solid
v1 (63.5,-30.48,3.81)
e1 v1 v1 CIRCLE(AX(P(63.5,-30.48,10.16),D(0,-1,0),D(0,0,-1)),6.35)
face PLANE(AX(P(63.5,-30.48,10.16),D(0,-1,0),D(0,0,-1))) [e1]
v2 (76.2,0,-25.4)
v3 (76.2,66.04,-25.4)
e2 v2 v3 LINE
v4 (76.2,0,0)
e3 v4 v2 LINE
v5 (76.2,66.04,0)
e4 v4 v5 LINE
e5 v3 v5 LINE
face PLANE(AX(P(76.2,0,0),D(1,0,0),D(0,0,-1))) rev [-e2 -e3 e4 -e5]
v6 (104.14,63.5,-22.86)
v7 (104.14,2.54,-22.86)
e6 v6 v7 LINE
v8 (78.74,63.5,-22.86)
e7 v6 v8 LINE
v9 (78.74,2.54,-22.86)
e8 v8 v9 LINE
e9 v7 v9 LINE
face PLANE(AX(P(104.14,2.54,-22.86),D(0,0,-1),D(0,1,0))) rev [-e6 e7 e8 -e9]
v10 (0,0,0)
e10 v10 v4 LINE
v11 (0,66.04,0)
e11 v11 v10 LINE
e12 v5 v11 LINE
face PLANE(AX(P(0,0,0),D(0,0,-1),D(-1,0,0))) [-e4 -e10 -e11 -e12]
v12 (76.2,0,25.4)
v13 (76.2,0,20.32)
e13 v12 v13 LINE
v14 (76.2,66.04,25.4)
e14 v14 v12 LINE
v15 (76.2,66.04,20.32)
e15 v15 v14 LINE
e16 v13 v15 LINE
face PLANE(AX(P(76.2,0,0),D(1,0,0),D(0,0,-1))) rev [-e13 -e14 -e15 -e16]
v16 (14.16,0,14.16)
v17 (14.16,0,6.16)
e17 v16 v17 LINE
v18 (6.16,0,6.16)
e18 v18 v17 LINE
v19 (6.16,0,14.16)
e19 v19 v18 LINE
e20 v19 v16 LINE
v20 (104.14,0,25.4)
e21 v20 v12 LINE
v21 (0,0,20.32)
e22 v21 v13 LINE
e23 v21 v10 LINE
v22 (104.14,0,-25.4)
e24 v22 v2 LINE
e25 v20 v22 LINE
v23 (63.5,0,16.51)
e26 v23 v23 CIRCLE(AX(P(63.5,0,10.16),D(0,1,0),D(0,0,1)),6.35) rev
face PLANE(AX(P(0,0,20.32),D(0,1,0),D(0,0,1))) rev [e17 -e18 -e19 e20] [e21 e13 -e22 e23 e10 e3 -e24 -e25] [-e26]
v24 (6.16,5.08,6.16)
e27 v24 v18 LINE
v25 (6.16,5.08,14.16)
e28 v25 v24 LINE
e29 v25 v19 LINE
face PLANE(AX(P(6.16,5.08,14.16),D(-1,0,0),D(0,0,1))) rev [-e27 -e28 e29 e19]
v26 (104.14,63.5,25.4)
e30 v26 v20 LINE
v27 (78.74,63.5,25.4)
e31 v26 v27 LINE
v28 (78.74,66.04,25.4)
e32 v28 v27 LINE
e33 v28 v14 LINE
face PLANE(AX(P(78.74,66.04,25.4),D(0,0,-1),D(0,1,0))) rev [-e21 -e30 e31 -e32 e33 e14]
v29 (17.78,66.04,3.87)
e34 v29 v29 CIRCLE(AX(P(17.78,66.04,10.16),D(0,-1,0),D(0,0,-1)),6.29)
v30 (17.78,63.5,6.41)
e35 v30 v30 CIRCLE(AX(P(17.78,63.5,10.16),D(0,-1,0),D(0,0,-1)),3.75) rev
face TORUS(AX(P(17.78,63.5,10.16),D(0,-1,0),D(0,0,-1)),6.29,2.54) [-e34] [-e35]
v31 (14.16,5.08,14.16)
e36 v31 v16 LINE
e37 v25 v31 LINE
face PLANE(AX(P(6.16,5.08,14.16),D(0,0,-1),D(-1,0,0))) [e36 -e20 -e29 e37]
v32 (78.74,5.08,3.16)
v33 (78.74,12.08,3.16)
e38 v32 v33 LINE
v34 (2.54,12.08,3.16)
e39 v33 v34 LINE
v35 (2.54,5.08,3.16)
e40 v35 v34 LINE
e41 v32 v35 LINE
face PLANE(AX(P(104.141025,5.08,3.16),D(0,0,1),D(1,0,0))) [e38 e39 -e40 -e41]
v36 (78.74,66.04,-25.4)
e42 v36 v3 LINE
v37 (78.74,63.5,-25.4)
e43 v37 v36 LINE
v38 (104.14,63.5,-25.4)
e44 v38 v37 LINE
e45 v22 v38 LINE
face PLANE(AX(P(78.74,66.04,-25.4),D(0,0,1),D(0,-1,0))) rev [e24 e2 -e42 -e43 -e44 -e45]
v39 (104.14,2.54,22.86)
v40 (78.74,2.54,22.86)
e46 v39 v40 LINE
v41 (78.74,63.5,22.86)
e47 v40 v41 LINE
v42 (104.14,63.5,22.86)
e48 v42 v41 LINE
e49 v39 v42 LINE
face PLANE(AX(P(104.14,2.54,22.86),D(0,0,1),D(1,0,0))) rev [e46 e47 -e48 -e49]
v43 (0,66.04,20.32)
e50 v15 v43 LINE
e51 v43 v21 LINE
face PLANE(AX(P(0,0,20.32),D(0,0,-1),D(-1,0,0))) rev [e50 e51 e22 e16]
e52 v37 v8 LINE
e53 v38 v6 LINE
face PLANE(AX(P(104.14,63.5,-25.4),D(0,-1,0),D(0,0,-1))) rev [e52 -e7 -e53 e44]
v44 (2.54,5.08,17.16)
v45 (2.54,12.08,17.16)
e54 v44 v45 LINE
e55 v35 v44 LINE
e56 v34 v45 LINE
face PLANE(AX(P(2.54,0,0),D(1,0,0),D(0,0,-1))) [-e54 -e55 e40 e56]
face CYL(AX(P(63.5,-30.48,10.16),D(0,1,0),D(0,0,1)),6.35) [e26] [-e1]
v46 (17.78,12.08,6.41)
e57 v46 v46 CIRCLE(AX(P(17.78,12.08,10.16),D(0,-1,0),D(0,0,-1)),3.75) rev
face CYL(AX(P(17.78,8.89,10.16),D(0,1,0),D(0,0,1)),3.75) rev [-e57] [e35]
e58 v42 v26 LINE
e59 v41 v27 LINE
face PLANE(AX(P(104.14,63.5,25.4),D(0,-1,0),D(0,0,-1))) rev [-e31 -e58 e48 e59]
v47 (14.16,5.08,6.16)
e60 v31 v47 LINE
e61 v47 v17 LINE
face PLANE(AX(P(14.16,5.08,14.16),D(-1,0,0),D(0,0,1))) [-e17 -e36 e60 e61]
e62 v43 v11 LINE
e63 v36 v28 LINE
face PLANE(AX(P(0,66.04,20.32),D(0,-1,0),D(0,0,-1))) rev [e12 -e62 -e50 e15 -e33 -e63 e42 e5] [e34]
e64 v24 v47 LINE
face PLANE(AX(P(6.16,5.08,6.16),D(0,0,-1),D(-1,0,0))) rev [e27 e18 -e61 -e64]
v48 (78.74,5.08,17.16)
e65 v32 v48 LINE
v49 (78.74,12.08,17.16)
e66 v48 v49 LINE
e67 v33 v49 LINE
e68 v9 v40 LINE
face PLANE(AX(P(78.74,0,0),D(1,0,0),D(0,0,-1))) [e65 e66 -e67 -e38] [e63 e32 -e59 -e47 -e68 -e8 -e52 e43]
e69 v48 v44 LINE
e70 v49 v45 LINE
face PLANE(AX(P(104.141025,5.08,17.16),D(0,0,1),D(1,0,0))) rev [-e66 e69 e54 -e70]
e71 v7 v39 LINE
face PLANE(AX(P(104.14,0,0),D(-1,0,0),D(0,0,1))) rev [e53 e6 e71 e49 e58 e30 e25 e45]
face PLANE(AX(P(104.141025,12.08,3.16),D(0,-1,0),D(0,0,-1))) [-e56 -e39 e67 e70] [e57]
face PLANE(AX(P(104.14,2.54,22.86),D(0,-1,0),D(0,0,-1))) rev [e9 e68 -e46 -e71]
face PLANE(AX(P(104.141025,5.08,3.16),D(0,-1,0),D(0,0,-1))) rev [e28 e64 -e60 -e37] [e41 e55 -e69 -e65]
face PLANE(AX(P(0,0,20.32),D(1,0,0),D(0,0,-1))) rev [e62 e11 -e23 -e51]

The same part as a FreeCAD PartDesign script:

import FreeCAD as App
import Part
import Sketcher
from FreeCAD import Vector
Q = App.Units.Quantity


def edges_at(feature, points):
    """Names of the edges that pass closest to the given points."""
    edges = feature.Shape.Edges
    near = lambda p: min(range(len(edges)), key=lambda i: edges[i].distToShape(Part.Vertex(*p))[0])
    return sorted({f"Edge{near(p) + 1}" for p in points})

doc = App.newDocument("Part")
body = doc.addObject("PartDesign::Body", "Body")

sketch1 = body.newObject("Sketcher::SketchObject", "Sketch")
sketch1.AttachmentSupport = (doc.getObject("XY_Plane"), [""])
sketch1.MapMode = "FlatFace"
sketch1.addGeometry([
    Part.LineSegment(Vector(0, 66.04, 0), Vector(0, 0, 0)),
    Part.LineSegment(Vector(0, 0, 0), Vector(76.2, 0, 0)),
    Part.LineSegment(Vector(76.2, 0, 0), Vector(76.2, 66.04, 0)),
    Part.LineSegment(Vector(76.2, 66.04, 0), Vector(0, 66.04, 0)),
], False)
sketch1.addConstraint([
    Sketcher.Constraint("Coincident", 0, 2, 1, 1),
    Sketcher.Constraint("Coincident", 1, 2, 2, 1),
    Sketcher.Constraint("Coincident", 2, 2, 3, 1),
    Sketcher.Constraint("Coincident", 3, 2, 0, 1),
    Sketcher.Constraint("Vertical", 0),
    Sketcher.Constraint("Horizontal", 1),
    Sketcher.Constraint("Vertical", 2),
    Sketcher.Constraint("Horizontal", 3),
    Sketcher.Constraint("Coincident", 0, 2, -1, 1),
    Sketcher.Constraint("DistanceX", 1, 1, 1, 2, Q("3 in")),
    Sketcher.Constraint("DistanceY", 0, 2, 0, 1, Q("2.6 in")),
])
pad1 = body.newObject("PartDesign::Pad", "Pad")
pad1.Profile = sketch1
pad1.Length = Q("0.8 in")

sketch2 = body.newObject("Sketcher::SketchObject", "Sketch001")
sketch2.AttachmentSupport = (doc.getObject("XZ_Plane"), [""])
sketch2.MapMode = "FlatFace"
sketch2.AttachmentOffset = App.Placement(Vector(0, 0, -2.6 * 25.4), App.Rotation())
sketch2.addGeometry(Part.Circle(Vector(17.78, 10.16, 0), Vector(0, 0, 1), 3.75), False)
sketch2.addConstraint([
    Sketcher.Constraint("DistanceX", -1, 1, 0, 3, Q("0.7 in")),
    Sketcher.Constraint("DistanceY", -1, 1, 0, 3, Q("0.4 in")),
    Sketcher.Constraint("Diameter", 0, 7.5),
])
pocket1 = body.newObject("PartDesign::Pocket", "Pocket")
pocket1.Profile = sketch2
pocket1.Length = Q("2.25 in")
pocket1.Reversed = True

sketch3 = body.newObject("Sketcher::SketchObject", "Sketch002")
sketch3.AttachmentSupport = (doc.getObject("XZ_Plane"), [""])
sketch3.MapMode = "FlatFace"
sketch3.addGeometry([
    Part.LineSegment(Vector(14.16, 6.16, 0), Vector(14.16, 14.16, 0)),
    Part.LineSegment(Vector(14.16, 14.16, 0), Vector(6.16, 14.16, 0)),
    Part.LineSegment(Vector(6.16, 14.16, 0), Vector(6.16, 6.16, 0)),
    Part.LineSegment(Vector(6.16, 6.16, 0), Vector(14.16, 6.16, 0)),
], False)
sketch3.addConstraint([
    Sketcher.Constraint("Coincident", 0, 2, 1, 1),
    Sketcher.Constraint("Coincident", 1, 2, 2, 1),
    Sketcher.Constraint("Coincident", 2, 2, 3, 1),
    Sketcher.Constraint("Coincident", 3, 2, 0, 1),
    Sketcher.Constraint("Vertical", 0),
    Sketcher.Constraint("Horizontal", 1),
    Sketcher.Constraint("Vertical", 2),
    Sketcher.Constraint("Horizontal", 3),
    Sketcher.Constraint("Equal", 3, 0),
    Sketcher.Constraint("DistanceX", 1, 2, 1, 1, 8.0),
    Sketcher.Constraint("DistanceX", -1, 1, 0, 2, 14.16),
    Sketcher.Constraint("DistanceY", -1, 1, 0, 2, 14.16),
])
pocket2 = body.newObject("PartDesign::Pocket", "Pocket001")
pocket2.Profile = sketch3
pocket2.Length = Q("0.2 in")
doc.recompute()

fillet = body.newObject("PartDesign::Fillet", "Fillet")
fillet.Base = (pocket2, edges_at(pocket2, [(17.78, 66.04, 6.41)]))
fillet.Radius = Q("0.1 in")

sketch4 = body.newObject("Sketcher::SketchObject", "Sketch003")
sketch4.AttachmentSupport = (doc.getObject("YZ_Plane"), [""])
sketch4.MapMode = "FlatFace"
sketch4.AttachmentOffset = App.Placement(Vector(0, 0, 3 * 25.4), App.Rotation())
sketch4.addGeometry([
    Part.LineSegment(Vector(66.04, 25.4, 0), Vector(0, 25.4, 0)),
    Part.LineSegment(Vector(0, 25.4, 0), Vector(0, -25.4, 0)),
    Part.LineSegment(Vector(0, -25.4, 0), Vector(66.04, -25.4, 0)),
    Part.LineSegment(Vector(66.04, -25.4, 0), Vector(66.04, 25.4, 0)),
], False)
sketch4.addConstraint([
    Sketcher.Constraint("Coincident", 0, 2, 1, 1),
    Sketcher.Constraint("Coincident", 1, 2, 2, 1),
    Sketcher.Constraint("Coincident", 2, 2, 3, 1),
    Sketcher.Constraint("Coincident", 3, 2, 0, 1),
    Sketcher.Constraint("Horizontal", 0),
    Sketcher.Constraint("Vertical", 1),
    Sketcher.Constraint("Horizontal", 2),
    Sketcher.Constraint("Vertical", 3),
    Sketcher.Constraint("Symmetric", 0, 2, 1, 2, -1, 1),
    Sketcher.Constraint("DistanceY", 1, 2, 1, 1, Q("2 in")),
    Sketcher.Constraint("DistanceX", 0, 2, 0, 1, Q("2.6 in")),
])
pad2 = body.newObject("PartDesign::Pad", "Pad001")
pad2.Profile = sketch4
pad2.Length = Q("0.1 in")

sketch5 = body.newObject("Sketcher::SketchObject", "Sketch004")
sketch5.AttachmentSupport = (doc.getObject("YZ_Plane"), [""])
sketch5.MapMode = "FlatFace"
sketch5.AttachmentOffset = App.Placement(Vector(0, 0, 3.1 * 25.4), App.Rotation())
sketch5.addGeometry([
    Part.LineSegment(Vector(0, 25.4, 0), Vector(0, -25.4, 0)),
    Part.LineSegment(Vector(0, -25.4, 0), Vector(63.5, -25.4, 0)),
    Part.LineSegment(Vector(63.5, -25.4, 0), Vector(63.5, -22.86, 0)),
    Part.LineSegment(Vector(63.5, -22.86, 0), Vector(2.54, -22.86, 0)),
    Part.LineSegment(Vector(2.54, -22.86, 0), Vector(2.54, 22.86, 0)),
    Part.LineSegment(Vector(2.54, 22.86, 0), Vector(63.5, 22.86, 0)),
    Part.LineSegment(Vector(63.5, 22.86, 0), Vector(63.5, 25.4, 0)),
    Part.LineSegment(Vector(63.5, 25.4, 0), Vector(0, 25.4, 0)),
], False)
sketch5.addConstraint([
    Sketcher.Constraint("Coincident", 0, 2, 1, 1),
    Sketcher.Constraint("Coincident", 1, 2, 2, 1),
    Sketcher.Constraint("Coincident", 2, 2, 3, 1),
    Sketcher.Constraint("Coincident", 3, 2, 4, 1),
    Sketcher.Constraint("Coincident", 4, 2, 5, 1),
    Sketcher.Constraint("Coincident", 5, 2, 6, 1),
    Sketcher.Constraint("Coincident", 6, 2, 7, 1),
    Sketcher.Constraint("Coincident", 7, 2, 0, 1),
    Sketcher.Constraint("Vertical", 0),
    Sketcher.Constraint("Horizontal", 1),
    Sketcher.Constraint("Vertical", 2),
    Sketcher.Constraint("Horizontal", 3),
    Sketcher.Constraint("Vertical", 4),
    Sketcher.Constraint("Horizontal", 5),
    Sketcher.Constraint("Vertical", 6),
    Sketcher.Constraint("Horizontal", 7),
    Sketcher.Constraint("Symmetric", 0, 2, 7, 2, -1, 1),
    Sketcher.Constraint("Symmetric", 2, 2, 5, 2, -1),
    Sketcher.Constraint("DistanceY", 0, 2, 0, 1, Q("2 in")),
    Sketcher.Constraint("DistanceX", 1, 1, 1, 2, Q("2.5 in")),
    Sketcher.Constraint("DistanceX", 3, 2, 3, 1, Q("2.4 in")),
    Sketcher.Constraint("DistanceY", 2, 1, 2, 2, Q("0.1 in")),
])
pad3 = body.newObject("PartDesign::Pad", "Pad002")
pad3.Profile = sketch5
pad3.Length = Q("1 in")

sketch6 = body.newObject("Sketcher::SketchObject", "Sketch005")
sketch6.AttachmentSupport = (doc.getObject("YZ_Plane"), [""])
sketch6.MapMode = "FlatFace"
sketch6.AttachmentOffset = App.Placement(Vector(0, 0, 3 * 25.4), App.Rotation())
sketch6.addGeometry([
    Part.LineSegment(Vector(12.08, 17.16, 0), Vector(5.08, 17.16, 0)),
    Part.LineSegment(Vector(5.08, 17.16, 0), Vector(5.08, 3.16, 0)),
    Part.LineSegment(Vector(5.08, 3.16, 0), Vector(12.08, 3.16, 0)),
    Part.LineSegment(Vector(12.08, 3.16, 0), Vector(12.08, 17.16, 0)),
], False)
sketch6.addConstraint([
    Sketcher.Constraint("Coincident", 0, 2, 1, 1),
    Sketcher.Constraint("Coincident", 1, 2, 2, 1),
    Sketcher.Constraint("Coincident", 2, 2, 3, 1),
    Sketcher.Constraint("Coincident", 3, 2, 0, 1),
    Sketcher.Constraint("Horizontal", 0),
    Sketcher.Constraint("Vertical", 1),
    Sketcher.Constraint("Horizontal", 2),
    Sketcher.Constraint("Vertical", 3),
    Sketcher.Constraint("DistanceX", -1, 1, 0, 2, Q("0.2 in")),
    Sketcher.Constraint("DistanceX", 0, 2, 0, 1, 7.0),
    Sketcher.Constraint("DistanceY", 1, 2, 1, 1, 14.0),
    Sketcher.Constraint("DistanceY", -1, 1, 0, 2, 17.16),
])
pocket3 = body.newObject("PartDesign::Pocket", "Pocket002")
pocket3.Profile = sketch6
pocket3.Length = Q("2.9 in")

sketch7 = body.newObject("Sketcher::SketchObject", "Sketch006")
sketch7.AttachmentSupport = (doc.getObject("YZ_Plane"), [""])
sketch7.MapMode = "FlatFace"
sketch7.AttachmentOffset = App.Placement(Vector(0, 0, 3 * 25.4), App.Rotation())
sketch7.addGeometry([
    Part.LineSegment(Vector(12.08, 17.16, 0), Vector(5.08, 17.16, 0)),
    Part.LineSegment(Vector(5.08, 17.16, 0), Vector(5.08, 3.16, 0)),
    Part.LineSegment(Vector(5.08, 3.16, 0), Vector(12.08, 3.16, 0)),
    Part.LineSegment(Vector(12.08, 3.16, 0), Vector(12.08, 17.16, 0)),
], False)
sketch7.addConstraint([
    Sketcher.Constraint("Coincident", 0, 2, 1, 1),
    Sketcher.Constraint("Coincident", 1, 2, 2, 1),
    Sketcher.Constraint("Coincident", 2, 2, 3, 1),
    Sketcher.Constraint("Coincident", 3, 2, 0, 1),
    Sketcher.Constraint("Horizontal", 0),
    Sketcher.Constraint("Vertical", 1),
    Sketcher.Constraint("Horizontal", 2),
    Sketcher.Constraint("Vertical", 3),
    Sketcher.Constraint("DistanceX", -1, 1, 0, 2, Q("0.2 in")),
    Sketcher.Constraint("DistanceX", 0, 2, 0, 1, 7.0),
    Sketcher.Constraint("DistanceY", 1, 2, 1, 1, 14.0),
    Sketcher.Constraint("DistanceY", -1, 1, 0, 2, 17.16),
])
pocket4 = body.newObject("PartDesign::Pocket", "Pocket003")
pocket4.Profile = sketch7
pocket4.Type = "UpToFirst"
pocket4.Reversed = True

sketch8 = body.newObject("Sketcher::SketchObject", "Sketch007")
sketch8.AttachmentSupport = (doc.getObject("XZ_Plane"), [""])
sketch8.MapMode = "FlatFace"
sketch8.addGeometry(Part.Circle(Vector(63.5, 10.16, 0), Vector(0, 0, 1), 6.35), False)
sketch8.addConstraint([
    Sketcher.Constraint("Diameter", 0, Q("0.5 in")),
    Sketcher.Constraint("DistanceX", -1, 1, 0, 3, Q("2.5 in")),
    Sketcher.Constraint("DistanceY", -1, 1, 0, 3, Q("0.4 in")),
])
pad4 = body.newObject("PartDesign::Pad", "Pad003")
pad4.Profile = sketch8
pad4.Length = Q("1.2 in")

doc.recompute()
